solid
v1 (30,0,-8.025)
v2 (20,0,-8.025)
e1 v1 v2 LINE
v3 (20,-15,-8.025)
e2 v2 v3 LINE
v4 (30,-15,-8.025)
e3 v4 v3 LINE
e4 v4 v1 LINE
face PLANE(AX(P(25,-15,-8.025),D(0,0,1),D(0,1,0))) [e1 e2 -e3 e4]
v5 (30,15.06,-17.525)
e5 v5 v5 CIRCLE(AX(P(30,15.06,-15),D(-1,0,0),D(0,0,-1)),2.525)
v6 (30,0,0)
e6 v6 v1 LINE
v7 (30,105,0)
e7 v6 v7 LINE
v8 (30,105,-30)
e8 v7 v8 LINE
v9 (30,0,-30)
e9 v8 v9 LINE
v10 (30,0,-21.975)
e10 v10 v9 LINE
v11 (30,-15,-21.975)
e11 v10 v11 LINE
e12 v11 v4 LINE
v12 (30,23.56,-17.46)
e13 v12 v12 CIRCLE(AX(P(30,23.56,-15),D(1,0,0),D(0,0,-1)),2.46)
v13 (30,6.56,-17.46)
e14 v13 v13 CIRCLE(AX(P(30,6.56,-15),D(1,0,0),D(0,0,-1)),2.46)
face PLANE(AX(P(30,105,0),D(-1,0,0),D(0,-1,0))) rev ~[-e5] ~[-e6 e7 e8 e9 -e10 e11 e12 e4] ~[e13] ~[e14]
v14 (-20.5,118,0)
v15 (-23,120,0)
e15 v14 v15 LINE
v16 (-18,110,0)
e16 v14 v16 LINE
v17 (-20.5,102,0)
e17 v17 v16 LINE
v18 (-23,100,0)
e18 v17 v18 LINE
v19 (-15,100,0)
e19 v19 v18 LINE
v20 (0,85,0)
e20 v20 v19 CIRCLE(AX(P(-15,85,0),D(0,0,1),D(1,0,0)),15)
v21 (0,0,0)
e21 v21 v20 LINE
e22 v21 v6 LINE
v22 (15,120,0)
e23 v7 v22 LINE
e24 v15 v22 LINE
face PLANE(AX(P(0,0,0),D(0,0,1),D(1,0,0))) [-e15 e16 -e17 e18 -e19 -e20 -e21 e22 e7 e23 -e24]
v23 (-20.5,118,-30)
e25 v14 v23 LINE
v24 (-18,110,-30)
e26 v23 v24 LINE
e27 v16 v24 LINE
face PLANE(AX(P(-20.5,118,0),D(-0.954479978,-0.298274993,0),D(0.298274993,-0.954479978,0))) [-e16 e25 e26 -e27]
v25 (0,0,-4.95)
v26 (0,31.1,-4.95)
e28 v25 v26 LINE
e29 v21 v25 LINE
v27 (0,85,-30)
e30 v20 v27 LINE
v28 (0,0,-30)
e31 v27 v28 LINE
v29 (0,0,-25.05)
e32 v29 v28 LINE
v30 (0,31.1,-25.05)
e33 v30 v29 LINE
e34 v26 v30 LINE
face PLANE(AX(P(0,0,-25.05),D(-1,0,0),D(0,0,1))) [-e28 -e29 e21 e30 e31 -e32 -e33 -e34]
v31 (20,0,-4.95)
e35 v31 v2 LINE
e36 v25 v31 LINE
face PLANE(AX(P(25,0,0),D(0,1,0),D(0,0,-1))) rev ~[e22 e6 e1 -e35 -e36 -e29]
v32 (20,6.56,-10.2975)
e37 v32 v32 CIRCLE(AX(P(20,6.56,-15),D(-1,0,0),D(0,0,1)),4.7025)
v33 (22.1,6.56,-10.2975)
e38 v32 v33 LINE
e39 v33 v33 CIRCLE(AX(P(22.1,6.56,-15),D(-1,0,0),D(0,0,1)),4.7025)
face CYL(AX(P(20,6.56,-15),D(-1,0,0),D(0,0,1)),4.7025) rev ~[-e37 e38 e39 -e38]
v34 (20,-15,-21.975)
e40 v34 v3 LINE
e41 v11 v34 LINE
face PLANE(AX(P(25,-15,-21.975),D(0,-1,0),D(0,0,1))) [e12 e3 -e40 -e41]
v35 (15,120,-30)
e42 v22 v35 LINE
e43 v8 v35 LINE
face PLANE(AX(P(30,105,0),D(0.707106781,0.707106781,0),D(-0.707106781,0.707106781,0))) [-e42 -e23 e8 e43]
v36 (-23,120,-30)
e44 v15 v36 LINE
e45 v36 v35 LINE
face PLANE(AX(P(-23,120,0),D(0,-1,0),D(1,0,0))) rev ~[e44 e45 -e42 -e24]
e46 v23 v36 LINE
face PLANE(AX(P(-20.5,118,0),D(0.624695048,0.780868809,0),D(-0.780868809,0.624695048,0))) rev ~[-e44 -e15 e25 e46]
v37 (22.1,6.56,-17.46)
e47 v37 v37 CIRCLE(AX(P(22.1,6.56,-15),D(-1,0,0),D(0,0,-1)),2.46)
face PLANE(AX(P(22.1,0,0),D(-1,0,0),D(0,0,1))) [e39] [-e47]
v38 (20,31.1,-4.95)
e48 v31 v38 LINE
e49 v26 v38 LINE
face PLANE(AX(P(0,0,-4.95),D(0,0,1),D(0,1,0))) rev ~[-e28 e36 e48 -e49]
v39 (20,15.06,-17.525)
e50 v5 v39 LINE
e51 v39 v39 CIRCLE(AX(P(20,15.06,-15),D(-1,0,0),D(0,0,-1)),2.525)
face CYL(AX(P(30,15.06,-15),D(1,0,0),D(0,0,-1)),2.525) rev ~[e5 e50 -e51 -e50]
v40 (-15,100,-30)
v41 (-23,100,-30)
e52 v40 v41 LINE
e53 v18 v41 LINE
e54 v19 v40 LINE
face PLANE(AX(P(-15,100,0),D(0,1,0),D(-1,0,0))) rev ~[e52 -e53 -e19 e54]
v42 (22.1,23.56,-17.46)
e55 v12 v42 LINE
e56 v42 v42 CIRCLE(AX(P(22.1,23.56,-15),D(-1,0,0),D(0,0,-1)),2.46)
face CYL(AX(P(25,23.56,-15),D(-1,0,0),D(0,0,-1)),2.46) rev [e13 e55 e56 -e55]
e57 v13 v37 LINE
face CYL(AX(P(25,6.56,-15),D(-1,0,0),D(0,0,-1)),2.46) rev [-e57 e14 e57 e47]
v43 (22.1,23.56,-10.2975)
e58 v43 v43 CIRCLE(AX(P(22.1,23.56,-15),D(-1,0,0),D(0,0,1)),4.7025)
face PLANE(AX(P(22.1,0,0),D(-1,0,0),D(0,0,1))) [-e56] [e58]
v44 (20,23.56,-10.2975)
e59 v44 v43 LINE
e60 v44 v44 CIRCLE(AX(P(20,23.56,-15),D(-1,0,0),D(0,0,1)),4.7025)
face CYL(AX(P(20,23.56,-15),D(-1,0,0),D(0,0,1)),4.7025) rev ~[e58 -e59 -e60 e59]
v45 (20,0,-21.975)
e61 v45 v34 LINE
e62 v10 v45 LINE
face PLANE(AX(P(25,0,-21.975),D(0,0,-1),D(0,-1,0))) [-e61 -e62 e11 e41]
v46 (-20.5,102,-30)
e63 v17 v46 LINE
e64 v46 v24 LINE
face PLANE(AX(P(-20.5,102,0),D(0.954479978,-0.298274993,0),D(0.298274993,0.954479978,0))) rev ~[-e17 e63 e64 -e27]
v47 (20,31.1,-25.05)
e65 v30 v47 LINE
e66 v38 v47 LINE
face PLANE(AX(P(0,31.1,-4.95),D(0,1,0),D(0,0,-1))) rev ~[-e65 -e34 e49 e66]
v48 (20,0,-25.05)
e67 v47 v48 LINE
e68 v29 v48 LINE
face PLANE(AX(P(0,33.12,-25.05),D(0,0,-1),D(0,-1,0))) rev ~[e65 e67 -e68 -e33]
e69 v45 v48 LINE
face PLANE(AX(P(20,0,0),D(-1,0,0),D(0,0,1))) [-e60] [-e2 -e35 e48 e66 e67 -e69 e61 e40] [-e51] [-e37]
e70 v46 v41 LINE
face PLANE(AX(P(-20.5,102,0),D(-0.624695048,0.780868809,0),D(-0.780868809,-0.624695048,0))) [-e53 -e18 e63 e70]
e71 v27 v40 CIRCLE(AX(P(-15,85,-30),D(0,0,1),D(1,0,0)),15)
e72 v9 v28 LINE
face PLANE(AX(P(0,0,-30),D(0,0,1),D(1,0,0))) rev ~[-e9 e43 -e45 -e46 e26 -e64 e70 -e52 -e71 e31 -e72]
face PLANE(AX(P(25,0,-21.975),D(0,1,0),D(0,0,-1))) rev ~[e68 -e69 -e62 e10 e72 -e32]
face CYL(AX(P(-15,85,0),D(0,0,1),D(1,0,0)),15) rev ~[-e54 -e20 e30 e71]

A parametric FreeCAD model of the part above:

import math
import FreeCAD as App
import Part
import Sketcher
from FreeCAD import Vector

doc = App.newDocument("Part")
body = doc.addObject("PartDesign::Body", "Body")

# Sketch on XY plane
sketch1 = body.newObject("Sketcher::SketchObject", "Sketch")
sketch1.AttachmentSupport = (doc.getObject("XY_Plane"), [""])
sketch1.MapMode = "FlatFace"
sketch1.addGeometry([
    Part.LineSegment(Vector(0, 40, 0), Vector(0, 0, 0)),
    Part.LineSegment(Vector(0, 0, 0), Vector(25, 0, 0)),
    Part.LineSegment(Vector(25, 0, 0), Vector(25, 40, 0)),
    Part.LineSegment(Vector(25, 40, 0), Vector(0, 40, 0)),
], False)
sketch1.addConstraint([
    Sketcher.Constraint("Coincident", 0, 2, 1, 1),
    Sketcher.Constraint("Coincident", 1, 2, 2, 1),
    Sketcher.Constraint("Coincident", 2, 2, 3, 1),
    Sketcher.Constraint("Coincident", 3, 2, 0, 1),
    Sketcher.Constraint("Vertical", 0),
    Sketcher.Constraint("Horizontal", 1),
    Sketcher.Constraint("Vertical", 2),
    Sketcher.Constraint("Horizontal", 3),
    Sketcher.Constraint("Coincident", 0, 2, -1, 1),
    Sketcher.Constraint("DistanceX", 1, 1, 1, 2, 25.0),
    Sketcher.Constraint("DistanceY", 0, 2, 0, 1, 40.0),
])
pad1 = body.newObject("PartDesign::Pad", "Pad")
pad1.Profile = sketch1
pad1.Length = 30
pad1.Reversed = True

# Sketch on YZ plane
sketch2 = body.newObject("Sketcher::SketchObject", "Sketch001")
sketch2.AttachmentSupport = (doc.getObject("YZ_Plane"), [""])
sketch2.MapMode = "FlatFace"
sketch2.AttachmentOffset = App.Placement(Vector(0, 0, 25), App.Rotation())
sketch2.addGeometry(Part.Circle(Vector(6.6, -15, 0), Vector(0, 0, 1), 2.5), False)
sketch2.addConstraint([
    Sketcher.Constraint("Diameter", 0, 4.92),
    Sketcher.Constraint("DistanceY", 0, 3, -1, 1, 15.0),
    Sketcher.Constraint("DistanceX", -1, 1, 0, 3, 6.56),
])
pocket1 = body.newObject("PartDesign::Pocket", "Pocket")
pocket1.Profile = sketch2
pocket1.Length = 30

# Sketch on YZ plane
sketch3 = body.newObject("Sketcher::SketchObject", "Sketch002")
sketch3.AttachmentSupport = (doc.getObject("YZ_Plane"), [""])
sketch3.MapMode = "FlatFace"
sketch3.addGeometry([
    Part.LineSegment(Vector(0, -25, 0), Vector(0, -5, 0)),
    Part.LineSegment(Vector(0, -5, 0), Vector(33, -5, 0)),
    Part.LineSegment(Vector(33, -5, 0), Vector(33, -25, 0)),
    Part.LineSegment(Vector(33, -25, 0), Vector(0, -25, 0)),
], False)
sketch3.addConstraint([
    Sketcher.Constraint("Coincident", 0, 2, 1, 1),
    Sketcher.Constraint("Coincident", 1, 2, 2, 1),
    Sketcher.Constraint("Coincident", 2, 2, 3, 1),
    Sketcher.Constraint("Coincident", 3, 2, 0, 1),
    Sketcher.Constraint("Vertical", 0),
    Sketcher.Constraint("Horizontal", 1),
    Sketcher.Constraint("Vertical", 2),
    Sketcher.Constraint("Horizontal", 3),
    Sketcher.Constraint("PointOnObject", 0, 2, -2),
    Sketcher.Constraint("DistanceY", 0, 1, 0, 2, 20.1),
    Sketcher.Constraint("DistanceX", 1, 1, 1, 2, 33.12),
    Sketcher.Constraint("DistanceY", 0, 2, -1, 1, 4.95),
])
pocket2 = body.newObject("PartDesign::Pocket", "Pocket001")
pocket2.Profile = sketch3
pocket2.Length = 20
pocket2.Reversed = True

# Sketch on XZ plane
sketch4 = body.newObject("Sketcher::SketchObject", "Sketch003")
sketch4.AttachmentSupport = (doc.getObject("XZ_Plane"), [""])
sketch4.MapMode = "FlatFace"
sketch4.addGeometry([
    Part.LineSegment(Vector(25, -8, 0), Vector(20, -8, 0)),
    Part.LineSegment(Vector(20, -8, 0), Vector(20, -22, 0)),
    Part.LineSegment(Vector(20, -22, 0), Vector(25, -22, 0)),
    Part.LineSegment(Vector(25, -22, 0), Vector(25, -8, 0)),
], False)
sketch4.addConstraint([
    Sketcher.Constraint("Coincident", 0, 2, 1, 1),
    Sketcher.Constraint("Coincident", 1, 2, 2, 1),
    Sketcher.Constraint("Coincident", 2, 2, 3, 1),
    Sketcher.Constraint("Coincident", 3, 2, 0, 1),
    Sketcher.Constraint("Horizontal", 0),
    Sketcher.Constraint("Vertical", 1),
    Sketcher.Constraint("Horizontal", 2),
    Sketcher.Constraint("Vertical", 3),
    Sketcher.Constraint("DistanceY", 1, 2, 1, 1, 13.95),
    Sketcher.Constraint("DistanceX", 0, 2, 0, 1, 5.0),
    Sketcher.Constraint("DistanceX", -1, 1, 0, 2, 20.0),
    Sketcher.Constraint("DistanceY", 0, 2, -1, 1, 8.025),
])
pad2 = body.newObject("PartDesign::Pad", "Pad001")
pad2.Profile = sketch4
pad2.Length = 15

# Sketch on YZ plane
sketch5 = body.newObject("Sketcher::SketchObject", "Sketch004")
sketch5.AttachmentSupport = (doc.getObject("YZ_Plane"), [""])
sketch5.MapMode = "FlatFace"
sketch5.AttachmentOffset = App.Placement(Vector(0, 0, 20), App.Rotation())
sketch5.addGeometry([
    Part.Circle(Vector(6.6, -15, 0), Vector(0, 0, 1), 4.7),
    Part.Circle(Vector(6.6, -15, 0), Vector(0, 0, 1), 2.5),
], False)
sketch5.addConstraint([
    Sketcher.Constraint("Coincident", 1, 3, 0, 3),
    Sketcher.Constraint("Diameter", 0, 9.405),
    Sketcher.Constraint("Diameter", 1, 4.92),
    Sketcher.Constraint("DistanceY", 0, 3, -1, 1, 15.0),
    Sketcher.Constraint("DistanceX", -1, 1, 0, 3, 6.56),
])
pocket3 = body.newObject("PartDesign::Pocket", "Pocket002")
pocket3.Profile = sketch5
pocket3.Length = 2.1
pocket3.Reversed = True

# Sketch on YZ plane
sketch6 = body.newObject("Sketcher::SketchObject", "Sketch005")
sketch6.AttachmentSupport = (doc.getObject("YZ_Plane"), [""])
sketch6.MapMode = "FlatFace"
sketch6.AttachmentOffset = App.Placement(Vector(0, 0, 25), App.Rotation())
sketch6.addGeometry(Part.Circle(Vector(23.6, -15, 0), Vector(0, 0, 1), 2.5), False)
sketch6.addConstraint([
    Sketcher.Constraint("Diameter", 0, 4.92),
    Sketcher.Constraint("DistanceY", 0, 3, -1, 1, 15.0),
    Sketcher.Constraint("DistanceX", -1, 1, 0, 3, 23.56),
])
pocket4 = body.newObject("PartDesign::Pocket", "Pocket003")
pocket4.Profile = sketch6
pocket4.Length = 10

# Sketch on YZ plane
sketch7 = body.newObject("Sketcher::SketchObject", "Sketch006")
sketch7.AttachmentSupport = (doc.getObject("YZ_Plane"), [""])
sketch7.MapMode = "FlatFace"
sketch7.AttachmentOffset = App.Placement(Vector(0, 0, 20), App.Rotation())
sketch7.addGeometry([
    Part.Circle(Vector(23.6, -15, 0), Vector(0, 0, 1), 4.7),
    Part.Circle(Vector(23.6, -15, 0), Vector(0, 0, 1), 2.5),
], False)
sketch7.addConstraint([
    Sketcher.Constraint("Coincident", 1, 3, 0, 3),
    Sketcher.Constraint("Diameter", 0, 9.405),
    Sketcher.Constraint("Diameter", 1, 4.92),
    Sketcher.Constraint("DistanceY", 0, 3, -1, 1, 15.0),
    Sketcher.Constraint("DistanceX", -1, 1, 0, 3, 23.56),
])
pocket5 = body.newObject("PartDesign::Pocket", "Pocket004")
pocket5.Profile = sketch7
pocket5.Length = 2.1
pocket5.Reversed = True

# Sketch on YZ plane
sketch8 = body.newObject("Sketcher::SketchObject", "Sketch007")
sketch8.AttachmentSupport = (doc.getObject("YZ_Plane"), [""])
sketch8.MapMode = "FlatFace"
sketch8.AttachmentOffset = App.Placement(Vector(0, 0, 25), App.Rotation())
sketch8.addGeometry([
    Part.LineSegment(Vector(0, -30, 0), Vector(40, -30, 0)),  # 0
    Part.LineSegment(Vector(40, -30, 0), Vector(40, 0, 0)),  # 1
    Part.LineSegment(Vector(40, 0, 0), Vector(0, 0, 0)),  # 2
    Part.LineSegment(Vector(0, 0, 0), Vector(0, -8, 0)),  # 3
    Part.LineSegment(Vector(0, -8, 0), Vector(-15, -8, 0)),  # 4
    Part.LineSegment(Vector(-15, -8, 0), Vector(-15, -22, 0)),  # 5
    Part.LineSegment(Vector(-15, -22, 0), Vector(0, -22, 0)),  # 6
    Part.LineSegment(Vector(0, -22, 0), Vector(0, -30, 0)),  # 7
    Part.Circle(Vector(6.6, -15, 0), Vector(0, 0, 1), 2.5),  # 8
    Part.Circle(Vector(23.6, -15, 0), Vector(0, 0, 1), 2.5),  # 9
], False)
sketch8.addConstraint([
    Sketcher.Constraint("Coincident", 0, 2, 1, 1),
    Sketcher.Constraint("Coincident", 1, 2, 2, 1),
    Sketcher.Constraint("Coincident", 2, 2, 3, 1),
    Sketcher.Constraint("Coincident", 3, 2, 4, 1),
    Sketcher.Constraint("Coincident", 4, 2, 5, 1),
    Sketcher.Constraint("Coincident", 5, 2, 6, 1),
    Sketcher.Constraint("Coincident", 6, 2, 7, 1),
    Sketcher.Constraint("Coincident", 7, 2, 0, 1),
    Sketcher.Constraint("Horizontal", 0),
    Sketcher.Constraint("Vertical", 1),
    Sketcher.Constraint("Horizontal", 2),
    Sketcher.Constraint("Vertical", 3),
    Sketcher.Constraint("Horizontal", 4),
    Sketcher.Constraint("Vertical", 5),
    Sketcher.Constraint("Horizontal", 6),
    Sketcher.Constraint("Vertical", 7),
    Sketcher.Constraint("Coincident", 2, 2, -1, 1),
    Sketcher.Constraint("Equal", 8, 9),
    Sketcher.Constraint("PointOnObject", 6, 2, -2),
    Sketcher.Constraint("Horizontal", 8, 3, 9, 3),
    Sketcher.Constraint("Equal", 3, 7),
    Sketcher.Constraint("Diameter", 8, 4.92),
    Sketcher.Constraint("DistanceX", 0, 1, 0, 2, 40.0),
    Sketcher.Constraint("DistanceX", 4, 2, 4, 1, 15.0),
    Sketcher.Constraint("DistanceY", 1, 1, 1, 2, 30.0),
    Sketcher.Constraint("DistanceY", 8, 3, -1, 1, 15.0),
    Sketcher.Constraint("DistanceX", 8, 3, 9, 3, 17.0),
    Sketcher.Constraint("DistanceY", 5, 2, 5, 1, 13.95),
    Sketcher.Constraint("DistanceX", -1, 1, 8, 3, 6.56),
])
pad3 = body.newObject("PartDesign::Pad", "Pad002")
pad3.Profile = sketch8
pad3.Length = 5

# Sketch on XZ plane
sketch9 = body.newObject("Sketcher::SketchObject", "Sketch008")
sketch9.AttachmentSupport = (doc.getObject("XZ_Plane"), [""])
sketch9.MapMode = "FlatFace"
sketch9.AttachmentOffset = App.Placement(Vector(0, 0, -40), App.Rotation())
sketch9.addGeometry([
    Part.LineSegment(Vector(30, -30, 0), Vector(0, -30, 0)),
    Part.LineSegment(Vector(0, -30, 0), Vector(0, 0, 0)),
    Part.LineSegment(Vector(0, 0, 0), Vector(30, 0, 0)),
    Part.LineSegment(Vector(30, 0, 0), Vector(30, -30, 0)),
], False)
sketch9.addConstraint([
    Sketcher.Constraint("Coincident", 0, 2, 1, 1),
    Sketcher.Constraint("Coincident", 1, 2, 2, 1),
    Sketcher.Constraint("Coincident", 2, 2, 3, 1),
    Sketcher.Constraint("Coincident", 3, 2, 0, 1),
    Sketcher.Constraint("Horizontal", 0),
    Sketcher.Constraint("Vertical", 1),
    Sketcher.Constraint("Horizontal", 2),
    Sketcher.Constraint("Vertical", 3),
    Sketcher.Constraint("Coincident", 1, 2, -1, 1),
    Sketcher.Constraint("Equal", 2, 1),
    Sketcher.Constraint("DistanceX", 0, 2, 0, 1, 30.0),
])
pad4 = body.newObject("PartDesign::Pad", "Pad003")
pad4.Profile = sketch9
pad4.Length = 30
pad4.Reversed = True

# Sketch on YZ plane
sketch10 = body.newObject("Sketcher::SketchObject", "Sketch009")
sketch10.AttachmentSupport = (doc.getObject("YZ_Plane"), [""])
sketch10.MapMode = "FlatFace"
sketch10.AttachmentOffset = App.Placement(Vector(0, 0, 30), App.Rotation())
sketch10.addGeometry(Part.Circle(Vector(15.1, -15, 0), Vector(0, 0, 1), 2.5), False)
sketch10.addConstraint([
    Sketcher.Constraint("Diameter", 0, 5.05),
    Sketcher.Constraint("DistanceY", 0, 3, -1, 1, 15.0),
    Sketcher.Constraint("DistanceX", -1, 1, 0, 3, 15.06),
])
pocket6 = body.newObject("PartDesign::Pocket", "Pocket005")
pocket6.Profile = sketch10
pocket6.Length = 30

# Sketch on XY plane
sketch11 = body.newObject("Sketcher::SketchObject", "Sketch010")
sketch11.AttachmentSupport = (doc.getObject("XY_Plane"), [""])
sketch11.MapMode = "FlatFace"
sketch11.addGeometry([
    Part.LineSegment(Vector(0, 70, 0), Vector(30, 70, 0)),  # 0
    Part.LineSegment(Vector(30, 70, 0), Vector(30, 105, 0)),  # 1
    Part.LineSegment(Vector(30, 105, 0), Vector(15, 120, 0)),  # 2
    Part.LineSegment(Vector(15, 120, 0), Vector(-23, 120, 0)),  # 3
    Part.LineSegment(Vector(-23, 120, 0), Vector(-20.5, 118, 0)),  # 4
    Part.LineSegment(Vector(-20.5, 118, 0), Vector(-18, 110, 0)),  # 5
    Part.LineSegment(Vector(-18, 110, 0), Vector(-20.5, 102, 0)),  # 6
    Part.LineSegment(Vector(-20.5, 102, 0), Vector(-23, 100, 0)),  # 7
    Part.LineSegment(Vector(-23, 100, 0), Vector(-15, 100, 0)),  # 8
    Part.ArcOfCircle(Part.Circle(Vector(-15, 85, 0), Vector(0, 0, 1), 15), math.radians(0), math.radians(90)),  # 9
    Part.LineSegment(Vector(0, 85, 0), Vector(0, 70, 0)),  # 10
], False)
sketch11.addConstraint([
    Sketcher.Constraint("Coincident", 0, 2, 1, 1),
    Sketcher.Constraint("Coincident", 1, 2, 2, 1),
    Sketcher.Constraint("Coincident", 2, 2, 3, 1),
    Sketcher.Constraint("Coincident", 3, 2, 4, 1),
    Sketcher.Constraint("Coincident", 4, 2, 5, 1),
    Sketcher.Constraint("Coincident", 5, 2, 6, 1),
    Sketcher.Constraint("Coincident", 6, 2, 7, 1),
    Sketcher.Constraint("Coincident", 7, 2, 8, 1),
    Sketcher.Constraint("Tangent", 8, 2, 9, 2),
    Sketcher.Constraint("Tangent", 9, 1, 10, 1),
    Sketcher.Constraint("Coincident", 10, 2, 0, 1),
    Sketcher.Constraint("Horizontal", 0),
    Sketcher.Constraint("Vertical", 1),
    Sketcher.Constraint("Horizontal", 3),
    Sketcher.Constraint("Horizontal", 8),
    Sketcher.Constraint("Vertical", 10),
    Sketcher.Constraint("PointOnObject", 9, 1, -2),
    Sketcher.Constraint("Vertical", 4, 2, 6, 2),
    Sketcher.Constraint("Vertical", 3, 2, 7, 2),
    Sketcher.Constraint("Equal", 5, 6),
    Sketcher.Constraint("Equal", 4, 7),
    Sketcher.Constraint("Radius", 9, 15.0),
    Sketcher.Constraint("DistanceX", 0, 1, 0, 2, 30.0),
    Sketcher.Constraint("DistanceY", 10, 2, 10, 1, 15.0),
    Sketcher.Constraint("DistanceX", -1, 1, 2, 2, 15.0),
    Sketcher.Constraint("DistanceY", 9, 3, 1, 2, 20.0),
    Sketcher.Constraint("DistanceY", 1, 2, 2, 2, 15.0),
    Sketcher.Constraint("DistanceX", 3, 2, 3, 1, 38.0),
    Sketcher.Constraint("DistanceY", -1, 1, 9, 3, 85.0),
    Sketcher.Constraint("DistanceY", -1, 1, 4, 2, 118.0),
    Sketcher.Constraint("DistanceX", 5, 2, -1, 1, 18.0),
    Sketcher.Constraint("DistanceX", 4, 2, -1, 1, 20.5),
])
pad5 = body.newObject("PartDesign::Pad", "Pad004")
pad5.Profile = sketch11
pad5.Length = 30
pad5.Reversed = True

# Sketch on YZ plane
sketch12 = body.newObject("Sketcher::SketchObject", "Sketch011")
sketch12.AttachmentSupport = (doc.getObject("YZ_Plane"), [""])
sketch12.MapMode = "FlatFace"
sketch12.addGeometry([
    Part.LineSegment(Vector(33.1, -5, 0), Vector(33.1, -25.1, 0)),
    Part.LineSegment(Vector(33.1, -25.1, 0), Vector(31.1, -25.1, 0)),
    Part.LineSegment(Vector(31.1, -25.1, 0), Vector(31.1, -5, 0)),
    Part.LineSegment(Vector(31.1, -5, 0), Vector(33.1, -5, 0)),
], False)
sketch12.addConstraint([
    Sketcher.Constraint("Coincident", 0, 2, 1, 1),
    Sketcher.Constraint("Coincident", 1, 2, 2, 1),
    Sketcher.Constraint("Coincident", 2, 2, 3, 1),
    Sketcher.Constraint("Coincident", 3, 2, 0, 1),
    Sketcher.Constraint("Vertical", 0),
    Sketcher.Constraint("Horizontal", 1),
    Sketcher.Constraint("Vertical", 2),
    Sketcher.Constraint("Horizontal", 3),
    Sketcher.Constraint("DistanceX", 1, 2, 1, 1, 2.02),
    Sketcher.Constraint("DistanceY", 0, 2, 0, 1, 20.1),
    Sketcher.Constraint("DistanceX", -1, 1, 1, 2, 31.1),
    Sketcher.Constraint("DistanceY", 0, 2, -1, 1, 25.05),
])
pad6 = body.newObject("PartDesign::Pad", "Pad005")
pad6.Profile = sketch12
pad6.Length = 20

doc.recompute()
